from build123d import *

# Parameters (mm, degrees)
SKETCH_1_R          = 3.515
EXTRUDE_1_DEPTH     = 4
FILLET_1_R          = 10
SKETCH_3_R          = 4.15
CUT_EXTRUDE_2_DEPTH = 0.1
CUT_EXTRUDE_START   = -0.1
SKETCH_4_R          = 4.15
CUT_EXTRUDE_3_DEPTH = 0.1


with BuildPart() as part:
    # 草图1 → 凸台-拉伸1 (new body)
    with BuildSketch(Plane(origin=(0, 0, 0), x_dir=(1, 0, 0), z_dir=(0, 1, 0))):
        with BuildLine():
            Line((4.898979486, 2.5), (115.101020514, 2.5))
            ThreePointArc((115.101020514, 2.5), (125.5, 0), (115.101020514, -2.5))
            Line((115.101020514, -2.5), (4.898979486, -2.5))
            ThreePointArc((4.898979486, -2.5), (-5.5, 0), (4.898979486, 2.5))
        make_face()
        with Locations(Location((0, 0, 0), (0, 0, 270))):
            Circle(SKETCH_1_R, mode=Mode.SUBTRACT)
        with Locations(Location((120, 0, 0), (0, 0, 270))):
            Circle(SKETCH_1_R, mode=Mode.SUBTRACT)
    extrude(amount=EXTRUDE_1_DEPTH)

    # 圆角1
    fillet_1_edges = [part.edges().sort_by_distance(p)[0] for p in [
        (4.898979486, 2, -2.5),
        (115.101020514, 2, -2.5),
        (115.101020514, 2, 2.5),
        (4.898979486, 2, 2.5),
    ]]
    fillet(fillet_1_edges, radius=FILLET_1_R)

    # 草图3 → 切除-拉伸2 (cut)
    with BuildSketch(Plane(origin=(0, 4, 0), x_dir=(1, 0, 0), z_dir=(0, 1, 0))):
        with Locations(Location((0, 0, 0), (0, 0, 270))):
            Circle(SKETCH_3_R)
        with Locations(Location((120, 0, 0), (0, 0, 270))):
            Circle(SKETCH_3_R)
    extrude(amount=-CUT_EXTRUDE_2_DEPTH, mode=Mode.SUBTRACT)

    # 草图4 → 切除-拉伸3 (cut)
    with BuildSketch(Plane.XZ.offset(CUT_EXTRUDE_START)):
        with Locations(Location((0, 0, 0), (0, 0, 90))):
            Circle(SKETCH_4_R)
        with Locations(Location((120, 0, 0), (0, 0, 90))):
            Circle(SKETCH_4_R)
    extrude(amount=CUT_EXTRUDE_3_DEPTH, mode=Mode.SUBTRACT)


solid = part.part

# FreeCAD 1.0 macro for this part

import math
import FreeCAD as App
import Part
import Sketcher

V = App.Vector
Q = App.Units.Quantity


def edges_at(feature, points):
    """Names of the edges that pass closest to the given points."""
    edges = feature.Shape.Edges
    near = lambda p: min(range(len(edges)), key=lambda i: edges[i].distToShape(Part.Vertex(*p))[0])
    return sorted({f"Edge{near(p) + 1}" for p in points})

doc = App.newDocument("Part")
body = doc.addObject("PartDesign::Body", "Body")

# Sketch on XZ plane
sketch1 = doc.addObject("Sketcher::SketchObject", "Sketch")
body.addObject(sketch1)
sketch1.AttachmentSupport = (doc.XZ_Plane, [""])
sketch1.MapMode = "FlatFace"
sketch1.addGeometry([
    Part.LineSegment(V(115.1, -2.5, 0), V(4.9, -2.5, 0)),  # 0
    Part.ArcOfCircle(Part.Circle(V(0, 0, 0), V(0, 0, 1), 5.5), math.radians(27), math.radians(333)),  # 1
    Part.LineSegment(V(4.9, 2.5, 0), V(115.1, 2.5, 0)),  # 2
    Part.ArcOfCircle(Part.Circle(V(120, 0, 0), V(0, 0, 1), 5.5), math.radians(-153), math.radians(153)),  # 3
    Part.Circle(V(120, 0, 0), V(0, 0, 1), 3.5),  # 4
    Part.Circle(V(0, 0, 0), V(0, 0, 1), 3.5),  # 5
], False)
sketch1.addConstraint([
    Sketcher.Constraint("Coincident", 0, 2, 1, 2),
    Sketcher.Constraint("Coincident", 1, 1, 2, 1),
    Sketcher.Constraint("Coincident", 2, 2, 3, 2),
    Sketcher.Constraint("Coincident", 3, 1, 0, 1),
    Sketcher.Constraint("Horizontal", 0),
    Sketcher.Constraint("Horizontal", 2),
    Sketcher.Constraint("Coincident", 1, 3, -1, 1),
    Sketcher.Constraint("Coincident", 5, 3, -1, 1),
    Sketcher.Constraint("Coincident", 4, 3, 3, 3),
    Sketcher.Constraint("Equal", 1, 3),
    Sketcher.Constraint("Equal", 4, 5),
    Sketcher.Constraint("Symmetric", 2, 2, 3, 1, -1),
    Sketcher.Constraint("Radius", 1, Q("5.5 mm")),
    Sketcher.Constraint("Diameter", 4, Q("7.03 mm")),
    Sketcher.Constraint("DistanceX", -1, 1, 3, 3, Q("120 mm")),
    Sketcher.Constraint("DistanceY", 0, 2, 1, 1, Q("5 mm")),
])
pad1 = doc.addObject("PartDesign::Pad", "Pad")
body.addObject(pad1)
pad1.Profile = sketch1
pad1.Length = 4
pad1.Reversed = True
doc.recompute()

fillet = doc.addObject("PartDesign::Fillet", "Fillet")
body.addObject(fillet)
fillet.Base = (pad1, edges_at(pad1, [
    (4.899, 2, -2.5),
    (115.101, 2, -2.5),
    (115.101, 2, 2.5),
    (4.899, 2, 2.5),
]))
fillet.Radius = 10

# Sketch on XZ plane
sketch2 = doc.addObject("Sketcher::SketchObject", "Sketch001")
body.addObject(sketch2)
sketch2.AttachmentSupport = (doc.XZ_Plane, [""])
sketch2.MapMode = "FlatFace"
sketch2.AttachmentOffset = App.Placement(V(0, 0, -4), App.Rotation())
sketch2.addGeometry([
    Part.Circle(V(0, 0, 0), V(0, 0, 1), 4.2),
    Part.Circle(V(120, 0, 0), V(0, 0, 1), 4.2),
], False)
sketch2.addConstraint([
    Sketcher.Constraint("Coincident", 0, 3, -1, 1),
    Sketcher.Constraint("Equal", 0, 1),
    Sketcher.Constraint("PointOnObject", 1, 3, -1),
    Sketcher.Constraint("Diameter", 0, Q("8.3 mm")),
    Sketcher.Constraint("DistanceX", -1, 1, 1, 3, Q("120 mm")),
])
pocket1 = doc.addObject("PartDesign::Pocket", "Pocket")
body.addObject(pocket1)
pocket1.Profile = sketch2
pocket1.Length = 0.1
pocket1.Reversed = True

# Sketch on XZ plane
sketch3 = doc.addObject("Sketcher::SketchObject", "Sketch002")
body.addObject(sketch3)
sketch3.AttachmentSupport = (doc.XZ_Plane, [""])
sketch3.MapMode = "FlatFace"
sketch3.AttachmentOffset = App.Placement(V(0, 0, -0.1), App.Rotation())
sketch3.addGeometry([
    Part.Circle(V(0, 0, 0), V(0, 0, 1), 4.2),
    Part.Circle(V(120, 0, 0), V(0, 0, 1), 4.2),
], False)
sketch3.addConstraint([
    Sketcher.Constraint("Coincident", 0, 3, -1, 1),
    Sketcher.Constraint("Equal", 0, 1),
    Sketcher.Constraint("PointOnObject", 1, 3, -1),
    Sketcher.Constraint("Diameter", 0, Q("8.3 mm")),
    Sketcher.Constraint("DistanceX", -1, 1, 1, 3, Q("120 mm")),
])
pocket2 = doc.addObject("PartDesign::Pocket", "Pocket001")
body.addObject(pocket2)
pocket2.Profile = sketch3
pocket2.Length = 0.1
pocket2.Reversed = True

doc.recompute()
